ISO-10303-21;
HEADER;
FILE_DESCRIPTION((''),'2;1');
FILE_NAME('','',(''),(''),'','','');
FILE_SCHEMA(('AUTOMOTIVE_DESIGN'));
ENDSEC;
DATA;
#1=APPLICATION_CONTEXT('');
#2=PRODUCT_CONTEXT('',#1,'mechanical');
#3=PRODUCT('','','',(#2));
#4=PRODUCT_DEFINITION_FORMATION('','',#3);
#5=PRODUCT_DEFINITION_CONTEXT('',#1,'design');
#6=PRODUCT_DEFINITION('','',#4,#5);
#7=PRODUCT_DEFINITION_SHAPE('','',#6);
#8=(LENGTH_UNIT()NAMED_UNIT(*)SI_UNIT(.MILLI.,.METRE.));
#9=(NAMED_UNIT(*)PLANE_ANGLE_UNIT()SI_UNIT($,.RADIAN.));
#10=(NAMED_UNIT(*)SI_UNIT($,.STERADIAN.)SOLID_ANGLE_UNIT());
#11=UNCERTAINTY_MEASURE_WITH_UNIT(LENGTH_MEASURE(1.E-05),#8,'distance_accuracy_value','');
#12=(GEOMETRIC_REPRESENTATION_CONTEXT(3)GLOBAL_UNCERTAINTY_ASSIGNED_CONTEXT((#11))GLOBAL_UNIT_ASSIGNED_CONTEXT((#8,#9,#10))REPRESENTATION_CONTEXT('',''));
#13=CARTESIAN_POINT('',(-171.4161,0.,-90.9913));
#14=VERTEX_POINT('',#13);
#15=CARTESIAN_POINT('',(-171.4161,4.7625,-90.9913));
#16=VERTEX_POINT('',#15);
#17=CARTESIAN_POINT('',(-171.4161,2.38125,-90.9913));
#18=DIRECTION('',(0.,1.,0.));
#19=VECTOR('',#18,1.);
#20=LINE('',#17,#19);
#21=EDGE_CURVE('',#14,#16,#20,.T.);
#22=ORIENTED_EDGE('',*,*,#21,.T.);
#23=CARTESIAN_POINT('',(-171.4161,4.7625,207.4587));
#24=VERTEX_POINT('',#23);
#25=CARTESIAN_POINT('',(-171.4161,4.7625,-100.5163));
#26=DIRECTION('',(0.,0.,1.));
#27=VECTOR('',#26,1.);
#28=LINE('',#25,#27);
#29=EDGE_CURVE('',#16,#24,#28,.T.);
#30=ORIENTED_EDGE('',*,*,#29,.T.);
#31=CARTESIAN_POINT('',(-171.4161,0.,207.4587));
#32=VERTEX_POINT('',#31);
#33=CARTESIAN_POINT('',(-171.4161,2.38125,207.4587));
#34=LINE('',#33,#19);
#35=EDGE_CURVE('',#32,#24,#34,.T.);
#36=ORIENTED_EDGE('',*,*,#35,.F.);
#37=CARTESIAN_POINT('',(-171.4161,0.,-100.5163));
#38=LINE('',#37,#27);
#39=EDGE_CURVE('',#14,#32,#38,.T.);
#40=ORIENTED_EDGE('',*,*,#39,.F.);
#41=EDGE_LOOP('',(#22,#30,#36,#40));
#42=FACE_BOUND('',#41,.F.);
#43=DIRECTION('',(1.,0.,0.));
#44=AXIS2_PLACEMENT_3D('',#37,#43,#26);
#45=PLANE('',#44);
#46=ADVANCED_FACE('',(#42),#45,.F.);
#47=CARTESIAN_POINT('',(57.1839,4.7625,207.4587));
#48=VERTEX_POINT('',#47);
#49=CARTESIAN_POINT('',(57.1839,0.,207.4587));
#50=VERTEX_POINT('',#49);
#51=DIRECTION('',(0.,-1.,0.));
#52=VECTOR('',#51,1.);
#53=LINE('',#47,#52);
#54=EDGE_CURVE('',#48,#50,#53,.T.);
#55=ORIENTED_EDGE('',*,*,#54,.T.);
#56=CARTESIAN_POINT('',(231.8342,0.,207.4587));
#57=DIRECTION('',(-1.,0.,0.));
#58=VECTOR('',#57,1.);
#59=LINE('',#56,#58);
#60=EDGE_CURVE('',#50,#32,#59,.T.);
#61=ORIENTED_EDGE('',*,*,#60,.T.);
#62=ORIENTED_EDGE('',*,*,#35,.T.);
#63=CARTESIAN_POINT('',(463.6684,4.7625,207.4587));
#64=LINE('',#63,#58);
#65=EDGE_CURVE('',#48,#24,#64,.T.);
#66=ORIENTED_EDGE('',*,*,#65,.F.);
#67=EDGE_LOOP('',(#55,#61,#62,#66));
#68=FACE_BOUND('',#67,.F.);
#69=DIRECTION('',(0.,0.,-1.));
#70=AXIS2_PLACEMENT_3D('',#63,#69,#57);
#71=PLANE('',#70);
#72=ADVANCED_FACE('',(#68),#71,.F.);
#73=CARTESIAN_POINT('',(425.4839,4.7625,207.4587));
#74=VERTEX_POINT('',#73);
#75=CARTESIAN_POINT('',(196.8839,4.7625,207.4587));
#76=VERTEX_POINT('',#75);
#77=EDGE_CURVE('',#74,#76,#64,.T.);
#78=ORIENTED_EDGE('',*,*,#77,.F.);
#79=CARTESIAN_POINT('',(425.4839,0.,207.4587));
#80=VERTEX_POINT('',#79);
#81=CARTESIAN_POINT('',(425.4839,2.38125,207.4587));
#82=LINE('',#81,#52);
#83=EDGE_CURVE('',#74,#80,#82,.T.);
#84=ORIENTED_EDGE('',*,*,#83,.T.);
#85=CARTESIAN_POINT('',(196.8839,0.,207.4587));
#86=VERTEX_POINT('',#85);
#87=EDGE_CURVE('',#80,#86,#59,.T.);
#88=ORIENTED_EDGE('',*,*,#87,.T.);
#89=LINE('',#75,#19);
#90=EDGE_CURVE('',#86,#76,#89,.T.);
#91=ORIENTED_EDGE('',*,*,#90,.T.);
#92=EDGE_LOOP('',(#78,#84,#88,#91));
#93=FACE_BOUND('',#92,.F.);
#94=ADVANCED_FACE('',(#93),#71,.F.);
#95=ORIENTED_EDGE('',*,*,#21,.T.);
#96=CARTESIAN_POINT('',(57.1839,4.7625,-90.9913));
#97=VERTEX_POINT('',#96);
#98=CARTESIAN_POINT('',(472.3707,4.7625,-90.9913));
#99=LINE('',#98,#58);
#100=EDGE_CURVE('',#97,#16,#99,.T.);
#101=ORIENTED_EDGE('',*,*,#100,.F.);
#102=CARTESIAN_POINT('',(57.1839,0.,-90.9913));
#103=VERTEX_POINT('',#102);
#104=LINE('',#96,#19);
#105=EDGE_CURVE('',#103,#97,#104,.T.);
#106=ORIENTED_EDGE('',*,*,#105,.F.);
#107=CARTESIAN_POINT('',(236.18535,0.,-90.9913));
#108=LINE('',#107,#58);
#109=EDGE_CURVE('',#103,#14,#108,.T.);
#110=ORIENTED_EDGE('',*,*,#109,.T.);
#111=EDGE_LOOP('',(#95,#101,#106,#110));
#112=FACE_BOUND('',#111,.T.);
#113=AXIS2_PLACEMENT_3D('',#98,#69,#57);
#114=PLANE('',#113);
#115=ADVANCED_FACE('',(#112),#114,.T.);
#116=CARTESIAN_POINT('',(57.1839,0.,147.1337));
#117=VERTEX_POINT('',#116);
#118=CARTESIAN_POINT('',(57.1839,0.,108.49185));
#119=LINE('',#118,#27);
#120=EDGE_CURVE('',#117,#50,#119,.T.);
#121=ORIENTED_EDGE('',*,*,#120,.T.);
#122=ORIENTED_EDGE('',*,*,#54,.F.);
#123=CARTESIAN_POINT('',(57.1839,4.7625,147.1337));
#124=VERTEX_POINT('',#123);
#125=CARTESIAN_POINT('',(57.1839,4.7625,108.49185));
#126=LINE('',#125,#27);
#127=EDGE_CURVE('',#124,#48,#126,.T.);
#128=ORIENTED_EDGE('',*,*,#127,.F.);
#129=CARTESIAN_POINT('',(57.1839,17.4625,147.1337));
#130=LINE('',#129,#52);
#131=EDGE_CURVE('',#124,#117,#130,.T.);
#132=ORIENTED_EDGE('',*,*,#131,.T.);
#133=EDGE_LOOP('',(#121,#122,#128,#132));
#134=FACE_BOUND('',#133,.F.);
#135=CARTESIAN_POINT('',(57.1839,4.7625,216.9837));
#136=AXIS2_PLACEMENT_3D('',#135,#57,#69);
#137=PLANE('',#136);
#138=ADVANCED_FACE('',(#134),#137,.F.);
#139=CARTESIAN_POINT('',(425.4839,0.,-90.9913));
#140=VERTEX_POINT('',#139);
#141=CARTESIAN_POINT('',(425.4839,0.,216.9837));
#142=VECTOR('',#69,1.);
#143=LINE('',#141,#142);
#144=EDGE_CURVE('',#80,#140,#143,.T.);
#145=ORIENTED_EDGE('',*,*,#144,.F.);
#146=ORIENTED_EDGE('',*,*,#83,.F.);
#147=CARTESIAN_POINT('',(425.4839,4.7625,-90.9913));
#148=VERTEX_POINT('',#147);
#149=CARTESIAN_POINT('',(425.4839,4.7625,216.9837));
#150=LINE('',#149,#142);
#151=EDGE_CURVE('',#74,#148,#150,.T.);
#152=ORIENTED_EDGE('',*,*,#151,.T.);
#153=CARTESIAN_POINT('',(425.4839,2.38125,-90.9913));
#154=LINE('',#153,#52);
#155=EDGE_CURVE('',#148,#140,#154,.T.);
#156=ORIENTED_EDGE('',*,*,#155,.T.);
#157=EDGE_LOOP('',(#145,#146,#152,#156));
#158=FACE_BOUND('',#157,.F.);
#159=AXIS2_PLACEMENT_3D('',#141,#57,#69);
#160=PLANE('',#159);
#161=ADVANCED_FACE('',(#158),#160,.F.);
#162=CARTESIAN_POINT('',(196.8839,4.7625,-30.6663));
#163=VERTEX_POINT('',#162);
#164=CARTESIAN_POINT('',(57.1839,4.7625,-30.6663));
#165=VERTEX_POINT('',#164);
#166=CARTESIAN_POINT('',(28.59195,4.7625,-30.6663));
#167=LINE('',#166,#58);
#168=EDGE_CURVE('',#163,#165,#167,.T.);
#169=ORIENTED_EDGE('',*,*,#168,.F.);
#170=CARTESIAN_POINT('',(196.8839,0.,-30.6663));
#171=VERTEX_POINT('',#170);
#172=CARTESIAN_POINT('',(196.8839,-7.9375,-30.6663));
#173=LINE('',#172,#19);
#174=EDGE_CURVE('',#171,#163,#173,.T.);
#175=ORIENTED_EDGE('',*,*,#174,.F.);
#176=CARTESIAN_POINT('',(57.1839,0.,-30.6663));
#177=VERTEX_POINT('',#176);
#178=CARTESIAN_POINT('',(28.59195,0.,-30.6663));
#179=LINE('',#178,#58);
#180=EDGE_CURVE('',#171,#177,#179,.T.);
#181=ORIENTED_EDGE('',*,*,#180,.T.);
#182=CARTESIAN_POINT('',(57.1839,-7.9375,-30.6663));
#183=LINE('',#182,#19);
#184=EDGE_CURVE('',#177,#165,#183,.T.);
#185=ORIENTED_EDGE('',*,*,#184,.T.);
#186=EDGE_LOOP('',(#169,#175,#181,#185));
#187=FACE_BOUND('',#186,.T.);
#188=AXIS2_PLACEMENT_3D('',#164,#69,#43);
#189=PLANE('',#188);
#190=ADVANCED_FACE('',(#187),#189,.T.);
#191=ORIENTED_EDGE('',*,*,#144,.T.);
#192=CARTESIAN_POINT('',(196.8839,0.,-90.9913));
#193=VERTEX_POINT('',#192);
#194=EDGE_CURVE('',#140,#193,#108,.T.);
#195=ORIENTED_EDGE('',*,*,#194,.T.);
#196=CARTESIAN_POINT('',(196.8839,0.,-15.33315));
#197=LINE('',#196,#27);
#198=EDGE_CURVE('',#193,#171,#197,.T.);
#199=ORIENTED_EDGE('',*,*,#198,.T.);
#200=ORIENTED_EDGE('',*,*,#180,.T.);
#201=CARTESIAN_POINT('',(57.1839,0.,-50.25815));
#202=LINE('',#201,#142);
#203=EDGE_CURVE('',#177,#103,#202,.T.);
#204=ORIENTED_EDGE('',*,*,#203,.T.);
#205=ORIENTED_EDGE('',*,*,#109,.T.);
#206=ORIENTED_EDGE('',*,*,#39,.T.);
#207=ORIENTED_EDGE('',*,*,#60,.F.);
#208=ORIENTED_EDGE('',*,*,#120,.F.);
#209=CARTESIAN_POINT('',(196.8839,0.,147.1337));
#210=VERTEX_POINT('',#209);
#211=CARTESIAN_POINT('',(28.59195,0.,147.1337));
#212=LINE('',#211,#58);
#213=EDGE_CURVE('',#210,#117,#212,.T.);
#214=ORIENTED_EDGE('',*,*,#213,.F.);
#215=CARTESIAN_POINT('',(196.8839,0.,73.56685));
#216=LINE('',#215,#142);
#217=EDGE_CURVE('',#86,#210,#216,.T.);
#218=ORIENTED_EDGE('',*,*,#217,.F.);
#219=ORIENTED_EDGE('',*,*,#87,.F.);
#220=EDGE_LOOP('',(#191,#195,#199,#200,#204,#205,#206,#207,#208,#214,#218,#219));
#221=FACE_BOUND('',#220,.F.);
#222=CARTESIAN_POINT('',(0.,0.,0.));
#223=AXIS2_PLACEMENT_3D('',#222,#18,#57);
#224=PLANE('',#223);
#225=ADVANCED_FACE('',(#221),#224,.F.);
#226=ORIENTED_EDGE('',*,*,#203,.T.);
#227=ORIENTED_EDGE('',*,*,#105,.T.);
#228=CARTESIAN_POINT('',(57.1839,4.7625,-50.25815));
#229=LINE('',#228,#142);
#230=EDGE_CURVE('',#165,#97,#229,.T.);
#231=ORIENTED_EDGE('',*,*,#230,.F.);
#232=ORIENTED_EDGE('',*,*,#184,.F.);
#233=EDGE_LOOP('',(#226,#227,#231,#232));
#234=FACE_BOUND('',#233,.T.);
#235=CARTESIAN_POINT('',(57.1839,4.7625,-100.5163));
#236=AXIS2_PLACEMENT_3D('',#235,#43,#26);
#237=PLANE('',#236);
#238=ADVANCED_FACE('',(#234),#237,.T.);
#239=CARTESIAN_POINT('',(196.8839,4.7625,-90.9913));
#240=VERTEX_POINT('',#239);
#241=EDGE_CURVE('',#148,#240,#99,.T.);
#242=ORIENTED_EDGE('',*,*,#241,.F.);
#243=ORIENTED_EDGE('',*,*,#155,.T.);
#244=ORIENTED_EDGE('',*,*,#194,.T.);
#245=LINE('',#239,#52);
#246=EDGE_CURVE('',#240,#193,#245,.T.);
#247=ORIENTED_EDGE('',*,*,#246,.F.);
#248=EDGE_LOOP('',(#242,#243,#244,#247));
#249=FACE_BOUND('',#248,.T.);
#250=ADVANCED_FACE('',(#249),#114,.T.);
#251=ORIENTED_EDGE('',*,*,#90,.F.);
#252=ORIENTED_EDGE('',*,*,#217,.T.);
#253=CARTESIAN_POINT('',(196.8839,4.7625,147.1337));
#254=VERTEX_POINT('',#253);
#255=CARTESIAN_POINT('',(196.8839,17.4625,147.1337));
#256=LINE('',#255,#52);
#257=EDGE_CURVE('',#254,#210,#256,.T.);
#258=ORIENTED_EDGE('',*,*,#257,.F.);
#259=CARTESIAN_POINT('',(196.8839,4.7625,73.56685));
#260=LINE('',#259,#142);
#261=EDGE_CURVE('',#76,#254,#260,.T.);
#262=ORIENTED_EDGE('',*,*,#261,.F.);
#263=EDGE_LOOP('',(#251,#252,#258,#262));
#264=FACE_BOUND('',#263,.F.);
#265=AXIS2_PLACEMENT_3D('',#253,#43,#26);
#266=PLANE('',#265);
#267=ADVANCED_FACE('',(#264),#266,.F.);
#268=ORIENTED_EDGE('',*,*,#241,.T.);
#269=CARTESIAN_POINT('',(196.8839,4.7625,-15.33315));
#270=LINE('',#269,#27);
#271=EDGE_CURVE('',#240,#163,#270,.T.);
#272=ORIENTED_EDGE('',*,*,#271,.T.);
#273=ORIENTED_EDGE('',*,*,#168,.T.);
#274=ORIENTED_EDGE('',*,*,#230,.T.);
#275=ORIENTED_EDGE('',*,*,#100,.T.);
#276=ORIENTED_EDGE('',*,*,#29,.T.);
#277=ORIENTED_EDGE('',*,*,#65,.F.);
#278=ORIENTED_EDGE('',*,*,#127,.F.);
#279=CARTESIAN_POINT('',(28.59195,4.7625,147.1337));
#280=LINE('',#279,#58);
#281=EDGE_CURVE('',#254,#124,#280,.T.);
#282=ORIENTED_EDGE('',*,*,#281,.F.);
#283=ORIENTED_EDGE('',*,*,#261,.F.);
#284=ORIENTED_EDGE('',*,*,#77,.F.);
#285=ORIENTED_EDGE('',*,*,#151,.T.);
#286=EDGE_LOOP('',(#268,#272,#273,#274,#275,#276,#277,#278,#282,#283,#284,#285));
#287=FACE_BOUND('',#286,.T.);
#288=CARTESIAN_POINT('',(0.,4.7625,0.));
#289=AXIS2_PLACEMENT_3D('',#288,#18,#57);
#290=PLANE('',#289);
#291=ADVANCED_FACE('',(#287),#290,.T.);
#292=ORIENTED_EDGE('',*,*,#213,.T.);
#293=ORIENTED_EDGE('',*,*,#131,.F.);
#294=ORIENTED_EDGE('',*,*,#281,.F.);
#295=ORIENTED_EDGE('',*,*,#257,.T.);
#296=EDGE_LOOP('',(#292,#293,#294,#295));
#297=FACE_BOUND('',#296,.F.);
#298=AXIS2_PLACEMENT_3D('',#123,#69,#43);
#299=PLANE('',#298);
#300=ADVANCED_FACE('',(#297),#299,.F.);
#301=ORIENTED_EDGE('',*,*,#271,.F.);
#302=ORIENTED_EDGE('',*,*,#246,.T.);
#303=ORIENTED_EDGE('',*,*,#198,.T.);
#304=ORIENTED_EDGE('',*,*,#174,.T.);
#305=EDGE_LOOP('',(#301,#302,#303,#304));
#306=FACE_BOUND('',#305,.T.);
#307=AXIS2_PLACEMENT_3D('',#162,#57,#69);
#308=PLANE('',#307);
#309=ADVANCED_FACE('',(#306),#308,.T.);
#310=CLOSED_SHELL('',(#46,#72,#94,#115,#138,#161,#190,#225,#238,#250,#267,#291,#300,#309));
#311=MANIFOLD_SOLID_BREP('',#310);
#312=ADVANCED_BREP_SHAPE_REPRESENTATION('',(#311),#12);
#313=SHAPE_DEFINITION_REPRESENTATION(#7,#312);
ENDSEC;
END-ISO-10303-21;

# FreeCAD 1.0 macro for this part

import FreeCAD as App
import Part
import Sketcher
from FreeCAD import Vector
Q = App.Units.Quantity


def add_polygon(sketch, points):
    """Adds a closed chain of lines whose ends are joined by coincident constraints."""
    first, n = sketch.GeometryCount, len(points)
    for a, b in zip(points, points[1:] + points[:1]):
        sketch.addGeometry(Part.LineSegment(App.Vector(*a, 0), App.Vector(*b, 0)), False)
    for i in range(n):
        sketch.addConstraint(Sketcher.Constraint("Coincident", first + i, 2, first + (i + 1) % n, 1))

doc = App.newDocument("Part")
body = doc.addObject("PartDesign::Body", "Body")

# Sketch on XZ plane
sketch1 = body.newObject("Sketcher::SketchObject", "Sketch")
sketch1.AttachmentSupport = (doc.getObject("XZ_Plane"), [""])
sketch1.MapMode = "FlatFace"
add_polygon(sketch1, [(-171, -101), (-171, 217), (425, 217), (425, -101)])  # lines 0-3
sketch1.addConstraint([
    Sketcher.Constraint("Vertical", 0),
    Sketcher.Constraint("Horizontal", 1),
    Sketcher.Constraint("Vertical", 2),
    Sketcher.Constraint("Horizontal", 3),
    Sketcher.Constraint("DistanceX", 1, 1, 1, 2, Q("23.5 in")),
    Sketcher.Constraint("DistanceY", 0, 1, 0, 2, Q("12.5 in")),
    Sketcher.Constraint("DistanceX", 0, 2, -1, 1, Q("171.416 mm")),
    Sketcher.Constraint("DistanceY", -1, 1, 0, 2, Q("216.9837 mm")),
])
pad1 = body.newObject("PartDesign::Pad", "Pad")
pad1.Profile = sketch1
pad1.Length = Q("0.1875 in")
pad1.Reversed = True

# Sketch on XZ plane
sketch2 = body.newObject("Sketcher::SketchObject", "Sketch001")
sketch2.AttachmentSupport = (doc.getObject("XZ_Plane"), [""])
sketch2.MapMode = "FlatFace"
sketch2.AttachmentOffset = App.Placement(Vector(0, 0, -0.1875 * 25.4), App.Rotation())
add_polygon(sketch2, [(57, -101), (57, -31), (197, -31), (197, -101)])  # lines 0-3
add_polygon(sketch2, [(57, 147), (57, 217), (197, 217), (197, 147)])  # lines 4-7
sketch2.addConstraint([
    Sketcher.Constraint("Vertical", 0),
    Sketcher.Constraint("Horizontal", 1),
    Sketcher.Constraint("Vertical", 2),
    Sketcher.Constraint("Horizontal", 3),
    Sketcher.Constraint("Vertical", 4),
    Sketcher.Constraint("Horizontal", 5),
    Sketcher.Constraint("Vertical", 6),
    Sketcher.Constraint("Horizontal", 7),
    Sketcher.Constraint("Vertical", 3, 2, 4, 2),
    Sketcher.Constraint("Vertical", 2, 2, 5, 2),
    Sketcher.Constraint("Equal", 2, 4),
    Sketcher.Constraint("DistanceY", 0, 1, 0, 2, Q("2.75 in")),
    Sketcher.Constraint("DistanceX", 1, 1, 1, 2, Q("5.5 in")),
    Sketcher.Constraint("DistanceY", 1, 2, 6, 2, Q("7 in")),
    Sketcher.Constraint("DistanceX", -1, 1, 0, 2, Q("57.184 mm")),
    Sketcher.Constraint("DistanceY", 0, 2, -1, 1, Q("30.6663 mm")),
])
pocket1 = body.newObject("PartDesign::Pocket", "Pocket")
pocket1.Profile = sketch2
pocket1.Length = Q("1 in")
pocket1.Midplane = True

# Sketch on XZ plane
sketch3 = body.newObject("Sketcher::SketchObject", "Sketch002")
sketch3.AttachmentSupport = (doc.getObject("XZ_Plane"), [""])
sketch3.MapMode = "FlatFace"
sketch3.AttachmentOffset = App.Placement(Vector(0, 0, -0.1875 * 25.4), App.Rotation())
add_polygon(sketch3, [(472, -127), (-203, -127), (-203, -91), (472, -91)])  # lines 0-3
add_polygon(sketch3, [(464, 244), (464, 207), (-190, 207), (-190, 244)])  # lines 4-7
sketch3.addConstraint([
    Sketcher.Constraint("Horizontal", 0),
    Sketcher.Constraint("Vertical", 1),
    Sketcher.Constraint("Horizontal", 2),
    Sketcher.Constraint("Vertical", 3),
    Sketcher.Constraint("Vertical", 4),
    Sketcher.Constraint("Horizontal", 5),
    Sketcher.Constraint("Vertical", 6),
    Sketcher.Constraint("Horizontal", 7),
    Sketcher.Constraint("DistanceY", 2, 2, 4, 2, Q("11.75 in")),
    Sketcher.Constraint("DistanceY", 1, 1, 1, 2, Q("1.4211 in")),
    Sketcher.Constraint("DistanceX", 0, 2, 0, 1, Q("675.5146 mm")),
    Sketcher.Constraint("DistanceX", 5, 2, 5, 1, Q("653.7588 mm")),
    Sketcher.Constraint("DistanceY", 4, 2, 4, 1, Q("36.5655 mm")),
    Sketcher.Constraint("DistanceX", 0, 2, -1, 1, Q("7.9978 in")),
    Sketcher.Constraint("DistanceX", 4, 2, 2, 2, Q("0.3426 in")),
    Sketcher.Constraint("DistanceY", 0, 2, -1, 1, Q("127.0873 mm")),
])
pocket2 = body.newObject("PartDesign::Pocket", "Pocket001")
pocket2.Profile = sketch3
pocket2.Length = Q("1 in")
pocket2.Reversed = True

doc.recompute()
